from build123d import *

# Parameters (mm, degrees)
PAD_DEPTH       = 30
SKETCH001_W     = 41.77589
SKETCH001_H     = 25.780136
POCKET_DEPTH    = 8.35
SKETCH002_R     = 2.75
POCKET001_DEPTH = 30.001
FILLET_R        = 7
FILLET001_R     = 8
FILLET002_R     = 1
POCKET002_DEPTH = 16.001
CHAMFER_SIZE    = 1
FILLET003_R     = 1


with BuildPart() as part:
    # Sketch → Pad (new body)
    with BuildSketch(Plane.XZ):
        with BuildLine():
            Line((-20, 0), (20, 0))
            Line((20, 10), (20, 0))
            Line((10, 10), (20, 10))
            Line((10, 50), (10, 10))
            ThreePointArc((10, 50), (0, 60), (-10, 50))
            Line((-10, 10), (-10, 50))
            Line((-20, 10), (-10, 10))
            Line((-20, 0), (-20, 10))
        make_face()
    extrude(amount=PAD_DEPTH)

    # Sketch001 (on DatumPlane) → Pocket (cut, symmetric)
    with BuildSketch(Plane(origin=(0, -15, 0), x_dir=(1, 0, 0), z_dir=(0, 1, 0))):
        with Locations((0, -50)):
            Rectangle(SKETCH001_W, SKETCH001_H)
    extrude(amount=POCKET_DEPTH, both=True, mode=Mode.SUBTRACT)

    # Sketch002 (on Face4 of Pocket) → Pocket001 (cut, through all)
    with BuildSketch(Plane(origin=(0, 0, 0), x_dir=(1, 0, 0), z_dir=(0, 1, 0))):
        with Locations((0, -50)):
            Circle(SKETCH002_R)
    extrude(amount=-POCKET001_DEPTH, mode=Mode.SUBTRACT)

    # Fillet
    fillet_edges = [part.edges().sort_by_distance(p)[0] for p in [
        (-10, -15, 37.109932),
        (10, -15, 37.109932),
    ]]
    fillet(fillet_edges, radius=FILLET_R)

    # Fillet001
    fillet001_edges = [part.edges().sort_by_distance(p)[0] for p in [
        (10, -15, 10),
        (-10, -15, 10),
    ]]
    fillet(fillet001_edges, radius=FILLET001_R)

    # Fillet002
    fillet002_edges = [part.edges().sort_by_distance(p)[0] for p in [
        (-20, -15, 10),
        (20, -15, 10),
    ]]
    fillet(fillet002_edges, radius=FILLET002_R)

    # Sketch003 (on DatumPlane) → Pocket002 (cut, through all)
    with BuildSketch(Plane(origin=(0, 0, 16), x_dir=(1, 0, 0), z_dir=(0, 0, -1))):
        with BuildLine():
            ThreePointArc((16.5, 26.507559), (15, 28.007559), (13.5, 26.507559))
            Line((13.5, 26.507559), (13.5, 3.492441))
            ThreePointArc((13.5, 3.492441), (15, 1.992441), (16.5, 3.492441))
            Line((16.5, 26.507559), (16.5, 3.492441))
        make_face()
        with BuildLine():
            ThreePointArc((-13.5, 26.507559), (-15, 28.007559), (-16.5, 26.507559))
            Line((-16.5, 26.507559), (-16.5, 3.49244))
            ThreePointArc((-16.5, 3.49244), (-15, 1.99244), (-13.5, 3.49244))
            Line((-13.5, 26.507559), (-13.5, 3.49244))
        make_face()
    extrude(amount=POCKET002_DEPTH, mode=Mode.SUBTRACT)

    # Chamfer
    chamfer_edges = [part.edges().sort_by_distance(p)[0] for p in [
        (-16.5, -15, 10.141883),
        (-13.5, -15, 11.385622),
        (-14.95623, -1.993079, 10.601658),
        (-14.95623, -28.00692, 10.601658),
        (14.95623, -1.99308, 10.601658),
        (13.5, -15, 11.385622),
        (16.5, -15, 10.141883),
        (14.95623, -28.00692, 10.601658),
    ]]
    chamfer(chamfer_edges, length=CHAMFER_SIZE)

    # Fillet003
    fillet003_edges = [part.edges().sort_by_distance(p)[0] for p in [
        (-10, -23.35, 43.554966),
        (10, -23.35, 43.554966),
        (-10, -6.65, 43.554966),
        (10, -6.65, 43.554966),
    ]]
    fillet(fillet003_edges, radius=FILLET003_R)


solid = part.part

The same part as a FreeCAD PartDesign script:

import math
import FreeCAD as App
import Part
import Sketcher
from FreeCAD import Vector


def edges_at(feature, points):
    """Names of the edges that pass closest to the given points."""
    edges = feature.Shape.Edges
    near = lambda p: min(range(len(edges)), key=lambda i: edges[i].distToShape(Part.Vertex(*p))[0])
    return sorted({f"Edge{near(p) + 1}" for p in points})

doc = App.newDocument("Part")
params = doc.addObject("Spreadsheet::Sheet", "Params")
for row, (alias, value) in enumerate([
    ("sketch1_radius", "10 mm"),
    ("sketch1_width", "40 mm"),
    ("pad1_length", "30 mm"),
    ("pocket1_length", "16.7 mm"),
    ("sketch3_diameter", "5.5 mm"),
    ("fillet_radius", "7 mm"),
    ("fillet2_radius", "8 mm"),
    ("fillet3_radius", "1 mm"),
    ("sketch4_radius", "1.5 mm"),
    ("chamfer_size", "1 mm"),
    ("fillet4_radius", "1 mm"),
], start=1):
    params.set(f"A{row}", alias)
    params.set(f"B{row}", "=" + value)
    params.setAlias(f"B{row}", alias)

body = doc.addObject("PartDesign::Body", "Body")

# Sketch on XZ plane
sketch1 = body.newObject("Sketcher::SketchObject", "Sketch")
sketch1.AttachmentSupport = (doc.getObject("XZ_Plane"), [""])
sketch1.MapMode = "FlatFace"
sketch1.addGeometry([
    Part.LineSegment(Vector(-20, 0, 0), Vector(20, 0, 0)),  # 0
    Part.LineSegment(Vector(20, 0, 0), Vector(20, 10, 0)),  # 1
    Part.LineSegment(Vector(20, 10, 0), Vector(10, 10, 0)),  # 2
    Part.LineSegment(Vector(10, 10, 0), Vector(10, 50, 0)),  # 3
    Part.ArcOfCircle(Part.Circle(Vector(0, 50, 0), Vector(0, 0, 1), 10), math.radians(0), math.radians(180)),  # 4
    Part.LineSegment(Vector(-10, 50, 0), Vector(-10, 10, 0)),  # 5
    Part.LineSegment(Vector(-10, 10, 0), Vector(-20, 10, 0)),  # 6
    Part.LineSegment(Vector(-20, 10, 0), Vector(-20, 0, 0)),  # 7
], False)
sketch1.addConstraint([
    Sketcher.Constraint("Coincident", 0, 2, 1, 1),
    Sketcher.Constraint("Coincident", 1, 2, 2, 1),
    Sketcher.Constraint("Coincident", 2, 2, 3, 1),
    Sketcher.Constraint("Tangent", 3, 2, 4, 1),
    Sketcher.Constraint("Tangent", 4, 2, 5, 1),
    Sketcher.Constraint("Coincident", 5, 2, 6, 1),
    Sketcher.Constraint("Coincident", 6, 2, 7, 1),
    Sketcher.Constraint("Coincident", 7, 2, 0, 1),
    Sketcher.Constraint("Horizontal", 0),
    Sketcher.Constraint("Vertical", 1),
    Sketcher.Constraint("Horizontal", 2),
    Sketcher.Constraint("Vertical", 3),
    Sketcher.Constraint("Vertical", 5),
    Sketcher.Constraint("Horizontal", 6),
    Sketcher.Constraint("Vertical", 7),
    Sketcher.Constraint("Symmetric", 0, 2, 7, 2, -1, 1),
    Sketcher.Constraint("Symmetric", 2, 2, 5, 2, -2),
    Sketcher.Constraint("Equal", 6, 1),
    Sketcher.Constraint("Equal", 0, 3),
    Sketcher.Constraint("Radius", 4, 10.0),
    Sketcher.Constraint("DistanceX", 0, 1, 0, 2, 40.0),
])
sketch1.setExpression("Constraints[19]", "Params.sketch1_radius")
sketch1.setExpression("Constraints[20]", "Params.sketch1_width")
pad1 = body.newObject("PartDesign::Pad", "Pad")
pad1.Profile = sketch1
pad1.setExpression("Length", "Params.pad1_length")

# Sketch on XZ plane
sketch2 = body.newObject("Sketcher::SketchObject", "Sketch001")
sketch2.AttachmentSupport = (doc.getObject("XZ_Plane"), [""])
sketch2.MapMode = "FlatFace"
sketch2.AttachmentOffset = App.Placement(Vector(0, 0, 15), App.Rotation())
sketch2.addGeometry([
    Part.LineSegment(Vector(-20.887945, 37.109932, 0), Vector(-20.887945, 62.890068, 0)),
    Part.LineSegment(Vector(-20.887945, 62.890068, 0), Vector(20.887945, 62.890068, 0)),
    Part.LineSegment(Vector(20.887945, 62.890068, 0), Vector(20.887945, 37.109932, 0)),
    Part.LineSegment(Vector(20.887945, 37.109932, 0), Vector(-20.887945, 37.109932, 0)),
], False)
sketch2.addConstraint([
    Sketcher.Constraint("Coincident", 0, 2, 1, 1),
    Sketcher.Constraint("Coincident", 1, 2, 2, 1),
    Sketcher.Constraint("Coincident", 2, 2, 3, 1),
    Sketcher.Constraint("Coincident", 3, 2, 0, 1),
    Sketcher.Constraint("Vertical", 0),
    Sketcher.Constraint("Horizontal", 1),
    Sketcher.Constraint("Vertical", 2),
    Sketcher.Constraint("Horizontal", 3),
    Sketcher.Constraint("DistanceX", 1, 1, 1, 2, 41.77589),
    Sketcher.Constraint("DistanceY", 0, 1, 0, 2, 25.780136),
    Sketcher.Constraint("DistanceX", 0, 2, -1, 1, 20.887945),
    Sketcher.Constraint("DistanceY", -1, 1, 0, 2, 62.890068),
])
pocket1 = body.newObject("PartDesign::Pocket", "Pocket")
pocket1.Profile = sketch2
pocket1.setExpression("Length", "Params.pocket1_length")
pocket1.Midplane = True

# Sketch on XZ plane
sketch3 = body.newObject("Sketcher::SketchObject", "Sketch002")
sketch3.AttachmentSupport = (doc.getObject("XZ_Plane"), [""])
sketch3.MapMode = "FlatFace"
sketch3.addGeometry(Part.Circle(Vector(0, 50, 0), Vector(0, 0, 1), 2.75), False)
sketch3.addConstraint([
    Sketcher.Constraint("PointOnObject", 0, 3, -2),
    Sketcher.Constraint("Diameter", 0, 5.5),
    Sketcher.Constraint("DistanceY", -1, 1, 0, 3, 50.0),
])
sketch3.setExpression("Constraints[1]", "Params.sketch3_diameter")
pocket2 = body.newObject("PartDesign::Pocket", "Pocket001")
pocket2.Profile = sketch3
pocket2.Type = "ThroughAll"
pocket2.Reversed = True
doc.recompute()

fillet = body.newObject("PartDesign::Fillet", "Fillet")
fillet.Base = (pocket2, edges_at(pocket2, [(-10, -15, 37.11), (10, -15, 37.11)]))
fillet.setExpression("Radius", "Params.fillet_radius")
doc.recompute()

fillet2 = body.newObject("PartDesign::Fillet", "Fillet001")
fillet2.Base = (fillet, edges_at(fillet, [(10, -15, 10), (-10, -15, 10)]))
fillet2.setExpression("Radius", "Params.fillet2_radius")
doc.recompute()

fillet3 = body.newObject("PartDesign::Fillet", "Fillet002")
fillet3.Base = (fillet2, edges_at(fillet2, [(-20, -15, 10), (20, -15, 10)]))
fillet3.setExpression("Radius", "Params.fillet3_radius")

# Sketch on XY plane
sketch4 = body.newObject("Sketcher::SketchObject", "Sketch003")
sketch4.AttachmentSupport = (doc.getObject("XY_Plane"), [""])
sketch4.MapMode = "FlatFace"
sketch4.AttachmentOffset = App.Placement(Vector(0, 0, 16), App.Rotation())
sketch4.addGeometry([
    Part.ArcOfCircle(Part.Circle(Vector(15, -26.507559, 0), Vector(0, 0, 1), 1.5), math.radians(180), math.radians(360)),  # 0
    Part.LineSegment(Vector(13.5, -26.507559, 0), Vector(13.5, -3.492441, 0)),  # 1
    Part.ArcOfCircle(Part.Circle(Vector(15, -3.492441, 0), Vector(0, 0, 1), 1.5), math.radians(0), math.radians(180)),  # 2
    Part.LineSegment(Vector(16.5, -3.492441, 0), Vector(16.5, -26.507559, 0)),  # 3
    Part.ArcOfCircle(Part.Circle(Vector(-15, -26.507559, 0), Vector(0, 0, 1), 1.5), math.radians(180), math.radians(360)),  # 4
    Part.LineSegment(Vector(-16.5, -26.507559, 0), Vector(-16.5, -3.49244, 0)),  # 5
    Part.ArcOfCircle(Part.Circle(Vector(-15, -3.49244, 0), Vector(0, 0, 1), 1.5), math.radians(0), math.radians(180)),  # 6
    Part.LineSegment(Vector(-13.5, -3.49244, 0), Vector(-13.5, -26.507559, 0)),  # 7
], False)
sketch4.addConstraint([
    Sketcher.Constraint("Tangent", 0, 1, 1, 1),
    Sketcher.Constraint("Tangent", 1, 2, 2, 2),
    Sketcher.Constraint("Tangent", 2, 1, 3, 1),
    Sketcher.Constraint("Tangent", 3, 2, 0, 2),
    Sketcher.Constraint("Tangent", 4, 1, 5, 1),
    Sketcher.Constraint("Tangent", 5, 2, 6, 2),
    Sketcher.Constraint("Tangent", 6, 1, 7, 1),
    Sketcher.Constraint("Tangent", 7, 2, 4, 2),
    Sketcher.Constraint("Vertical", 1),
    Sketcher.Constraint("Vertical", 3),
    Sketcher.Constraint("Vertical", 5),
    Sketcher.Constraint("Vertical", 7),
    Sketcher.Constraint("Equal", 2, 4),
    Sketcher.Constraint("Symmetric", 0, 3, 4, 3, -2),
    Sketcher.Constraint("Horizontal", 2, 3, 6, 3),
    Sketcher.Constraint("Radius", 0, 1.5),
    Sketcher.Constraint("DistanceX", -1, 1, 0, 3, 15.0),
    Sketcher.Constraint("DistanceY", 1, 1, 1, 2, 23.015118),
    Sketcher.Constraint("DistanceY", 0, 3, -1, 1, 26.507559),
])
sketch4.setExpression("Constraints[15]", "Params.sketch4_radius")
pocket3 = body.newObject("PartDesign::Pocket", "Pocket002")
pocket3.Profile = sketch4
pocket3.Type = "ThroughAll"
doc.recompute()

chamfer = body.newObject("PartDesign::Chamfer", "Chamfer")
chamfer.Base = (pocket3, edges_at(pocket3, [
    (-16.5, -15, 10.142),
    (-13.5, -15, 11.386),
    (-14.956, -1.993, 10.602),
    (-14.956, -28.007, 10.602),
    (14.956, -1.993, 10.602),
    (13.5, -15, 11.386),
    (16.5, -15, 10.142),
    (14.956, -28.007, 10.602),
]))
chamfer.setExpression("Size", "Params.chamfer_size")
doc.recompute()

fillet4 = body.newObject("PartDesign::Fillet", "Fillet003")
fillet4.Base = (chamfer, edges_at(chamfer, [
    (-10, -23.35, 40.055),
    (10, -23.35, 40.055),
    (-10, -6.65, 40.055),
    (10, -6.65, 40.055),
]))
fillet4.setExpression("Radius", "Params.fillet4_radius")

doc.recompute()
